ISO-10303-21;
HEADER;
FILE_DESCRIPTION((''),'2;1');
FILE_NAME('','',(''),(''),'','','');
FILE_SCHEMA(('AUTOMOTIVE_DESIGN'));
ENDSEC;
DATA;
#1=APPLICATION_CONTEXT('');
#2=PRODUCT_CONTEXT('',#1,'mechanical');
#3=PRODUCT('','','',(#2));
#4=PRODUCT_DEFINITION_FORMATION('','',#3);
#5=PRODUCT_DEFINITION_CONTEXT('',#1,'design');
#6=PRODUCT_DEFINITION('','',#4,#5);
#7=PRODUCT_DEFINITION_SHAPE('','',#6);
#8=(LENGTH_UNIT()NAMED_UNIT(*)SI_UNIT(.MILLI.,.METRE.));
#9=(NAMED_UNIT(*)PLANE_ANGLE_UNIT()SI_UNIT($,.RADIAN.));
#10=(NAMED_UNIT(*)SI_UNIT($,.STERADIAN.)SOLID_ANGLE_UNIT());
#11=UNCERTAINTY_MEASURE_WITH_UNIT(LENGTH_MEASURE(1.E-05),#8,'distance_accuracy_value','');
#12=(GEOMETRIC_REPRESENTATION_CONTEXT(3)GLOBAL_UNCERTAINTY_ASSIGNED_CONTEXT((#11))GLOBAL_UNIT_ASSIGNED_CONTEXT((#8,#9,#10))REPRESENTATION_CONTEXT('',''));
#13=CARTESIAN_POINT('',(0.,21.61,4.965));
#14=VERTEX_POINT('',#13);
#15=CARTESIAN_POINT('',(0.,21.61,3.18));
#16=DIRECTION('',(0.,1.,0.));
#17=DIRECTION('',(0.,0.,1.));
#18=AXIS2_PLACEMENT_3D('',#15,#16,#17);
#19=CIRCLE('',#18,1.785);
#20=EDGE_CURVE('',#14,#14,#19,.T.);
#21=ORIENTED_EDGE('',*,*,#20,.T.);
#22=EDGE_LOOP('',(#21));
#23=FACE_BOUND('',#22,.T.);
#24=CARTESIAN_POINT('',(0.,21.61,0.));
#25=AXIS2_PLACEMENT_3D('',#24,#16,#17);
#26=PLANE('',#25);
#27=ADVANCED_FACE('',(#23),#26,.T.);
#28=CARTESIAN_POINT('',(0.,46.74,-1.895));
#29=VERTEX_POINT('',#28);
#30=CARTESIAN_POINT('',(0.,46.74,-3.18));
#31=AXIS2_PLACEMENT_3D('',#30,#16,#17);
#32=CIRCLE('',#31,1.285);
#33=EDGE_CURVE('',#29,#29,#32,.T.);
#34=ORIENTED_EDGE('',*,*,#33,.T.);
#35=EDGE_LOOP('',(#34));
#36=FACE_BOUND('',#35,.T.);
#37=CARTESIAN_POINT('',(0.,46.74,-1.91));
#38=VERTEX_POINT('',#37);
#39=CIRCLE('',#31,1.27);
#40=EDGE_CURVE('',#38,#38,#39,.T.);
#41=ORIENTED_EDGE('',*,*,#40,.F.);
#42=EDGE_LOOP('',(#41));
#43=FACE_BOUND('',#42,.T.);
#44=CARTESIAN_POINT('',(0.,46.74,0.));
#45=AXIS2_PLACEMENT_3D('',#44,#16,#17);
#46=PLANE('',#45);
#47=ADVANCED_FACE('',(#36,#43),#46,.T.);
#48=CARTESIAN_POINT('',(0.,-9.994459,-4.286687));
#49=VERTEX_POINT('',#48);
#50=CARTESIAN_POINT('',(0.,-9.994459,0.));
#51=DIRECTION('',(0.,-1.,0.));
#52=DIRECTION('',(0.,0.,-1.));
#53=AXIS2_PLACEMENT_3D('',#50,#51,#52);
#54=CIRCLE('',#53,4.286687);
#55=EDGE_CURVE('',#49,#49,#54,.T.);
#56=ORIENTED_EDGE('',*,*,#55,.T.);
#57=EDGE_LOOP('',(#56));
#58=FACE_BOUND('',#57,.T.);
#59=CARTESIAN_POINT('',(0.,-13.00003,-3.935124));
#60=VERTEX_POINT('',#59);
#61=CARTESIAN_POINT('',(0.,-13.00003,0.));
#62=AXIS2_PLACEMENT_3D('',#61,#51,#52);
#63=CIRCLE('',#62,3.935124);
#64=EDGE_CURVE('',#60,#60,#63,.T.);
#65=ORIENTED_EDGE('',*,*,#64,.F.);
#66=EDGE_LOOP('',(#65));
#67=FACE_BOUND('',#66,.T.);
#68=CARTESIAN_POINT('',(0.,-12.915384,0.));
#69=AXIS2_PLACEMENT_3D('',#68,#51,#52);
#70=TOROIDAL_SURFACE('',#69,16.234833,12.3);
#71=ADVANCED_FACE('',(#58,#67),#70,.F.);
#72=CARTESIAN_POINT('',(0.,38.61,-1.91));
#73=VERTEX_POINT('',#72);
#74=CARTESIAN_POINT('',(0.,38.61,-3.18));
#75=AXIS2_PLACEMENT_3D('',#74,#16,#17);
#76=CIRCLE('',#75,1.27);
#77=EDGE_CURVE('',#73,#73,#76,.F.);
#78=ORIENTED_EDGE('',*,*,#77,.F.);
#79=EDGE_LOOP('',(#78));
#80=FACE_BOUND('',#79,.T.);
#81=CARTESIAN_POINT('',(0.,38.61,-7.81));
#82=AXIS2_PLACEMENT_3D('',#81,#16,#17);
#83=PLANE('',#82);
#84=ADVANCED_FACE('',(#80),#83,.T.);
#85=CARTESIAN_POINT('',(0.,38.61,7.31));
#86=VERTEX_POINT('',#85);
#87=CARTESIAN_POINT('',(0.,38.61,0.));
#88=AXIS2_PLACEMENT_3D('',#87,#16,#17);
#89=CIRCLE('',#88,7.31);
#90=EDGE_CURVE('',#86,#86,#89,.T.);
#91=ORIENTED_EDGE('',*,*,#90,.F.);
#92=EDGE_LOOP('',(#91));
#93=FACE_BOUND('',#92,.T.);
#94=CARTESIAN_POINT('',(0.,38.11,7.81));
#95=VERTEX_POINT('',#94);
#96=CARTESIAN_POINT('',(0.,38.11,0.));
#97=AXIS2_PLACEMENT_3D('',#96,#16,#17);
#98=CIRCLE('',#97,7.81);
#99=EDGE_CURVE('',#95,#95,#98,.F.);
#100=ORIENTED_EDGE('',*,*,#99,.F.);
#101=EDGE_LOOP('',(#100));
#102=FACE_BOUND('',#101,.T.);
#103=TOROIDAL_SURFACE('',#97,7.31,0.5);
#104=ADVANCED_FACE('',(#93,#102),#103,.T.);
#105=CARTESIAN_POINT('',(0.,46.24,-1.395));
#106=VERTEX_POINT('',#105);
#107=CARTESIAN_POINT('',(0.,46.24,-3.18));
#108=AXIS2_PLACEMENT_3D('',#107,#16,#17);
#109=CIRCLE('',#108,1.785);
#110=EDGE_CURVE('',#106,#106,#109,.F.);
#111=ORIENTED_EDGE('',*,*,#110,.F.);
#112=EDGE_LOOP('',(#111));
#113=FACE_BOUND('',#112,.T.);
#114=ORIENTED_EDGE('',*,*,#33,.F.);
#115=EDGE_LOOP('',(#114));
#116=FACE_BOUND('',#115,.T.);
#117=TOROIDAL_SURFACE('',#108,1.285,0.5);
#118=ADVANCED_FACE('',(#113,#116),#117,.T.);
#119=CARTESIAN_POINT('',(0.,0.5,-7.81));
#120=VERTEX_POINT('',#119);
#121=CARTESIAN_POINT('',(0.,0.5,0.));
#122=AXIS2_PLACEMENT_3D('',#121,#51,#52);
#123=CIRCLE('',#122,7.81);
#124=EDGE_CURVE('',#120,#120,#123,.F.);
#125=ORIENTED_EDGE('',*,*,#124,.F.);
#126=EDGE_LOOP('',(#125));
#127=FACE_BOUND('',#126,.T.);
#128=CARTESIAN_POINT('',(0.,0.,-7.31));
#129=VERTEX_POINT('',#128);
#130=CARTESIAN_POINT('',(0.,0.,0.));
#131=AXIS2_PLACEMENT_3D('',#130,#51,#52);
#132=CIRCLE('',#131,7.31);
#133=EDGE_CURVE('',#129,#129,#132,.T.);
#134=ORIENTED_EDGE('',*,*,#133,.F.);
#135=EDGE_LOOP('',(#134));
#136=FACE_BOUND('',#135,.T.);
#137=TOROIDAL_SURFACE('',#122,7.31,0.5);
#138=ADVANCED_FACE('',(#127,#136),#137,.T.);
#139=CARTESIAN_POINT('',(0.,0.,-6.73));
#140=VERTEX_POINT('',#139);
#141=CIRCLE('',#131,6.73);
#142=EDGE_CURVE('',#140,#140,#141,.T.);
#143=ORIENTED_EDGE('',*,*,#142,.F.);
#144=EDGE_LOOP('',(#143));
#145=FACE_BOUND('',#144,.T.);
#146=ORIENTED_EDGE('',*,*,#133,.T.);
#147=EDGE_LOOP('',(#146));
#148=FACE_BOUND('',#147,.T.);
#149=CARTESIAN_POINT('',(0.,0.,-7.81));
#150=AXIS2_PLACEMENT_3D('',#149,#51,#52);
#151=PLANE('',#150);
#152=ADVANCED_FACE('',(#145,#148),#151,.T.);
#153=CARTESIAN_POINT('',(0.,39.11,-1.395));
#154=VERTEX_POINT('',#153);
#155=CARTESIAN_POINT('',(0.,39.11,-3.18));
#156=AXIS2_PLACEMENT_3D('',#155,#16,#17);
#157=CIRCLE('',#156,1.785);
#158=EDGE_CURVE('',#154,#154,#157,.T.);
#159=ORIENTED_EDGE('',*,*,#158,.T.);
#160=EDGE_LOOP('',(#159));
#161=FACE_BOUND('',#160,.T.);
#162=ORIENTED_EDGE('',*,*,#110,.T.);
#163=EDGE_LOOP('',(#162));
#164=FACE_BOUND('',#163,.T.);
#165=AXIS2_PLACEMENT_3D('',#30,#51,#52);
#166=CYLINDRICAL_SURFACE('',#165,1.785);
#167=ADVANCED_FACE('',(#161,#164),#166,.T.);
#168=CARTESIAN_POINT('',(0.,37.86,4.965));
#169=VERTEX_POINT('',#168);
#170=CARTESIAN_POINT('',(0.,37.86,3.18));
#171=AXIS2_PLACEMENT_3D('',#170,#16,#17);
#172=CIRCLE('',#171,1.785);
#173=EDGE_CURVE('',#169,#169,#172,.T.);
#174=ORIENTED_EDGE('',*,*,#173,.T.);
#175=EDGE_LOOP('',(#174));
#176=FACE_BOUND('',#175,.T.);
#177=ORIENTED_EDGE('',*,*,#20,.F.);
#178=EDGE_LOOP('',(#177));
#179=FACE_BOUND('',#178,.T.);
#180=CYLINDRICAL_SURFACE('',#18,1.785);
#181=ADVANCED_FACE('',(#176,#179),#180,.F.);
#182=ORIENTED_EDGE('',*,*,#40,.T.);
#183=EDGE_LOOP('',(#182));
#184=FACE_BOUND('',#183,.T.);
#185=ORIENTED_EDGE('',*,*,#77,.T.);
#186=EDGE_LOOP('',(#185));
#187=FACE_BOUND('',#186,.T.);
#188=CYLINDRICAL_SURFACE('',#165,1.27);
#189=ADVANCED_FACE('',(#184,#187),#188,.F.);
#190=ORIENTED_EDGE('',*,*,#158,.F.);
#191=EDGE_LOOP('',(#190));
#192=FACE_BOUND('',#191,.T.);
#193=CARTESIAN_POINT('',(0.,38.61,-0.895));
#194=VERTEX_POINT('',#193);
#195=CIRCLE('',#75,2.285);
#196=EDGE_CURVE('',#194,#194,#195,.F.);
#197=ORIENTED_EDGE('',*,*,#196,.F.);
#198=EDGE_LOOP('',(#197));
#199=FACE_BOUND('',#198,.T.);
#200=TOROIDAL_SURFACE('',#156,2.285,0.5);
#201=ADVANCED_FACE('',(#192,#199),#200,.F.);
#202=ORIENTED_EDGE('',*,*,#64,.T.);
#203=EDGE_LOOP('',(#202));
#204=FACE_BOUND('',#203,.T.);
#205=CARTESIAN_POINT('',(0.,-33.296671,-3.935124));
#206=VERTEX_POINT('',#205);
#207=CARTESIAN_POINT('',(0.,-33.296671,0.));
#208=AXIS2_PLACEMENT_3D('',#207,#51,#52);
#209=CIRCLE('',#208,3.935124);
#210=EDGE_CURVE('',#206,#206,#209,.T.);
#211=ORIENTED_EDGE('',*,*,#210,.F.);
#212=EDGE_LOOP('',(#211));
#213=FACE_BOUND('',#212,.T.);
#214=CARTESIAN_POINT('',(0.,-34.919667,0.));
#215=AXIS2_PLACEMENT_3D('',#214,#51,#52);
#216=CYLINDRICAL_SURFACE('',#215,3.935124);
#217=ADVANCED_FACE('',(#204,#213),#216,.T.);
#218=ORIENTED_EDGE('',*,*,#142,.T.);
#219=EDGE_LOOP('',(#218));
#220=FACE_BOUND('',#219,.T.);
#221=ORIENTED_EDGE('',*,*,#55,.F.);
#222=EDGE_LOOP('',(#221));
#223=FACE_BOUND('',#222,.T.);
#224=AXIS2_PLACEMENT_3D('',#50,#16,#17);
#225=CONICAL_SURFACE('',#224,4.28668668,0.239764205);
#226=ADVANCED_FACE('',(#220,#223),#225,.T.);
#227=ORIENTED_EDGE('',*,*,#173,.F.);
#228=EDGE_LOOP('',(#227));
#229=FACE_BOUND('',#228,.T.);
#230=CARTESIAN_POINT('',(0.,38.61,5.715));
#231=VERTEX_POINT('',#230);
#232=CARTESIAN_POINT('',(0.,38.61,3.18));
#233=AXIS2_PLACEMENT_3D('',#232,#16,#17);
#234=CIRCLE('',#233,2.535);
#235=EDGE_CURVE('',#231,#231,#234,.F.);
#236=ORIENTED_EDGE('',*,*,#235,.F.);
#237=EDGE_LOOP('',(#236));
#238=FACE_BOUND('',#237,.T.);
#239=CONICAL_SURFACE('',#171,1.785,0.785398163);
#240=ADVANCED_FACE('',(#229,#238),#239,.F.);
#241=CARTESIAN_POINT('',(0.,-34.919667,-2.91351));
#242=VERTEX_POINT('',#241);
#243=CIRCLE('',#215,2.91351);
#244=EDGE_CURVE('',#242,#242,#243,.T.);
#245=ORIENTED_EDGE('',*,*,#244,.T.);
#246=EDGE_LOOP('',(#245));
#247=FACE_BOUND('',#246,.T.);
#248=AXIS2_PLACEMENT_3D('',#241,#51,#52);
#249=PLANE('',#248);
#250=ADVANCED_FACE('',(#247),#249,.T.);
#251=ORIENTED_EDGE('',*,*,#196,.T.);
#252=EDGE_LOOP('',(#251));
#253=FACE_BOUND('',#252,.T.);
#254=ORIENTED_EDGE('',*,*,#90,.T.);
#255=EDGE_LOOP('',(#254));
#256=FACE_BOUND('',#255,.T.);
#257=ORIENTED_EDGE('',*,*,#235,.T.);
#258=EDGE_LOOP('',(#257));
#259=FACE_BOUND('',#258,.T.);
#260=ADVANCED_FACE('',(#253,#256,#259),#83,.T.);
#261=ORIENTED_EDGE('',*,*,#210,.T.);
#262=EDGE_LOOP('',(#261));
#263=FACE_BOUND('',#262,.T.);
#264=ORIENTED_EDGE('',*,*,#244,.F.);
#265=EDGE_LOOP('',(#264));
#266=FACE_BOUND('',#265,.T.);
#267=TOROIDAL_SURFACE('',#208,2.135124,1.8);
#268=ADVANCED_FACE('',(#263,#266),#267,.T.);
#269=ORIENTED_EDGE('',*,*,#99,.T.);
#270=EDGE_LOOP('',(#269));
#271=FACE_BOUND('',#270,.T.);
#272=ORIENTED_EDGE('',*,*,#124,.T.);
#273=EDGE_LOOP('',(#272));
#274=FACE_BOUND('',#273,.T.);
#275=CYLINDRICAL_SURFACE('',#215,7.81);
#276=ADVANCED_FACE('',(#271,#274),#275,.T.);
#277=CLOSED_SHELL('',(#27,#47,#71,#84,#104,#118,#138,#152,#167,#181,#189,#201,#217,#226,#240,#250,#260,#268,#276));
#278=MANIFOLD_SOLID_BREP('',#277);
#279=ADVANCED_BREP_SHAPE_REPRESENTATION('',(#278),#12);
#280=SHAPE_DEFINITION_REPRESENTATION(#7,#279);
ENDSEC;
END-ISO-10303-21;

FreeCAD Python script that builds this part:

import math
import FreeCAD as App
import Part
import Sketcher
from FreeCAD import Vector
Q = App.Units.Quantity


def edges_at(feature, points):
    """Names of the edges that pass closest to the given points."""
    edges = feature.Shape.Edges
    near = lambda p: min(range(len(edges)), key=lambda i: edges[i].distToShape(Part.Vertex(*p))[0])
    return sorted({f"Edge{near(p) + 1}" for p in points})

doc = App.newDocument("Part")
body = doc.addObject("PartDesign::Body", "Body")

# Sketch on YZ plane
sketch1 = body.newObject("Sketcher::SketchObject", "Sketch")
sketch1.AttachmentSupport = (doc.getObject("YZ_Plane"), [""])
sketch1.MapMode = "FlatFace"
sketch1.addGeometry(Part.LineSegment(Vector(0, -7.8, 0), Vector(38.6, -7.8, 0)), False)
sketch1.addGeometry(Part.LineSegment(Vector(38.6, -7.8, 0), Vector(38.6, 0, 0)), False)
sketch1.addGeometry(Part.LineSegment(Vector(38.6, 0, 0), Vector(-34.9, 0, 0)), False)
sketch1.addGeometry(Part.LineSegment(Vector(-34.9, 0, 0), Vector(-34.9, -2.9, 0)), False)
sketch1.addGeometry(Part.ArcOfCircle(Part.Circle(Vector(-33.3, -2.1, 0), Vector(0, 0, 1), 1.8), math.radians(-154), math.radians(-90)), False)
sketch1.addGeometry(Part.LineSegment(Vector(-33.3, -3.9, 0), Vector(-13, -3.9, 0)), False)
sketch1.addGeometry(Part.ArcOfCircle(Part.Circle(Vector(-12.9, -16.2, 0), Vector(0, 0, 1), 12.3), math.radians(76.26), math.radians(90.39)), False)
sketch1.addGeometry(Part.LineSegment(Vector(-10, -4.3, 0), Vector(0, -6.7, 0)), False)
sketch1.addGeometry(Part.LineSegment(Vector(0, -6.7, 0), Vector(0, -7.8, 0)), False)
sketch1.addConstraint(Sketcher.Constraint("Coincident", 0, 2, 1, 1))
sketch1.addConstraint(Sketcher.Constraint("Coincident", 1, 2, 2, 1))
sketch1.addConstraint(Sketcher.Constraint("Coincident", 2, 2, 3, 1))
sketch1.addConstraint(Sketcher.Constraint("Coincident", 3, 2, 4, 1))
sketch1.addConstraint(Sketcher.Constraint("Tangent", 4, 2, 5, 1))
sketch1.addConstraint(Sketcher.Constraint("Coincident", 5, 2, 6, 2))
sketch1.addConstraint(Sketcher.Constraint("Tangent", 6, 1, 7, 1))
sketch1.addConstraint(Sketcher.Constraint("Coincident", 7, 2, 8, 1))
sketch1.addConstraint(Sketcher.Constraint("Coincident", 8, 2, 0, 1))
sketch1.addConstraint(Sketcher.Constraint("Horizontal", 0))
sketch1.addConstraint(Sketcher.Constraint("Vertical", 1))
sketch1.addConstraint(Sketcher.Constraint("Horizontal", 2))
sketch1.addConstraint(Sketcher.Constraint("Vertical", 3))
sketch1.addConstraint(Sketcher.Constraint("Horizontal", 5))
sketch1.addConstraint(Sketcher.Constraint("Vertical", 8))
sketch1.addConstraint(Sketcher.Constraint("PointOnObject", 1, 2, -1))
sketch1.addConstraint(Sketcher.Constraint("PointOnObject", 7, 2, -2))
sketch1.addConstraint(Sketcher.Constraint("Radius", 4, Q("1.8 mm")))
sketch1.addConstraint(Sketcher.Constraint("Radius", 6, Q("12.3 mm")))
sketch1.addConstraint(Sketcher.Constraint("DistanceX", 0, 1, 0, 2, Q("38.61 mm")))
sketch1.addConstraint(Sketcher.Constraint("DistanceY", 1, 1, 1, 2, Q("7.81 mm")))
sketch1.addConstraint(Sketcher.Constraint("DistanceY", 8, 2, 8, 1, Q("1.08 mm")))
sketch1.addConstraint(Sketcher.Constraint("DistanceX", 5, 1, 5, 2, Q("20.296641 mm")))
sketch1.addConstraint(Sketcher.Constraint("DistanceY", 3, 2, 3, 1, Q("2.91351 mm")))
sketch1.addConstraint(Sketcher.Constraint("Distance", 7, Q("10.288779 mm")))
sketch1.addConstraint(Sketcher.Constraint("DistanceX", 2, 2, 2, 1, Q("73.529667 mm")))
sketch1.addConstraint(Sketcher.Constraint("DistanceX", 4, 3, -1, 1, Q("33.296671 mm")))
revolution = body.newObject("PartDesign::Revolution", "Revolution")
revolution.Profile = sketch1
revolution.ReferenceAxis = (sketch1, ["H_Axis"])
revolution.Angle = 360

# Sketch on XZ plane
sketch2 = body.newObject("Sketcher::SketchObject", "Sketch001")
sketch2.AttachmentSupport = (doc.getObject("XZ_Plane"), [""])
sketch2.MapMode = "FlatFace"
sketch2.AttachmentOffset = App.Placement(Vector(0, 0, -38.61), App.Rotation())
sketch2.addGeometry(Part.Circle(Vector(0, -3.2, 0), Vector(0, 0, 1), 1.8), False)
sketch2.addGeometry(Part.Circle(Vector(0, -3.2, 0), Vector(0, 0, 1), 1.3), False)
sketch2.addConstraint(Sketcher.Constraint("Coincident", 1, 3, 0, 3))
sketch2.addConstraint(Sketcher.Constraint("PointOnObject", 0, 3, -2))
sketch2.addConstraint(Sketcher.Constraint("Diameter", 0, Q("3.57 mm")))
sketch2.addConstraint(Sketcher.Constraint("Diameter", 1, Q("2.54 mm")))
sketch2.addConstraint(Sketcher.Constraint("DistanceY", 0, 3, -1, 1, Q("3.18 mm")))
pad1 = body.newObject("PartDesign::Pad", "Pad")
pad1.Profile = sketch2
pad1.Length = 8.13
pad1.Reversed = True
doc.recompute()

fillet = body.newObject("PartDesign::Fillet", "Fillet")
fillet.Base = (pad1, edges_at(pad1, [(-1.785, 46.74, -3.18)]))
fillet.Radius = 0.5
doc.recompute()

fillet2 = body.newObject("PartDesign::Fillet", "Fillet001")
fillet2.Base = (fillet, edges_at(fillet, [(-1.785, 38.61, -3.18)]))
fillet2.Radius = 0.5
doc.recompute()

fillet3 = body.newObject("PartDesign::Fillet", "Fillet002")
fillet3.Base = (fillet2, edges_at(fillet2, [(0, 38.61, 7.81), (0, 0, 7.81)]))
fillet3.Radius = 0.5

# Sketch on XZ plane
sketch3 = body.newObject("Sketcher::SketchObject", "Sketch002")
sketch3.AttachmentSupport = (doc.getObject("XZ_Plane"), [""])
sketch3.MapMode = "FlatFace"
sketch3.AttachmentOffset = App.Placement(Vector(0, 0, -39.61), App.Rotation())
sketch3.addGeometry(Part.Circle(Vector(0, 3.2, 0), Vector(0, 0, 1), 1.8), False)
sketch3.addConstraint(Sketcher.Constraint("PointOnObject", 0, 3, -2))
sketch3.addConstraint(Sketcher.Constraint("Diameter", 0, Q("3.57 mm")))
sketch3.addConstraint(Sketcher.Constraint("DistanceY", -1, 1, 0, 3, Q("3.18 mm")))
pocket1 = body.newObject("PartDesign::Pocket", "Pocket")
pocket1.Profile = sketch3
pocket1.Length = 18
pocket1.Reversed = True
doc.recompute()

chamfer = body.newObject("PartDesign::Chamfer", "Chamfer")
chamfer.Base = (pocket1, edges_at(pocket1, [(-1.785, 38.61, 3.18)]))
chamfer.Size = 0.75

doc.recompute()
